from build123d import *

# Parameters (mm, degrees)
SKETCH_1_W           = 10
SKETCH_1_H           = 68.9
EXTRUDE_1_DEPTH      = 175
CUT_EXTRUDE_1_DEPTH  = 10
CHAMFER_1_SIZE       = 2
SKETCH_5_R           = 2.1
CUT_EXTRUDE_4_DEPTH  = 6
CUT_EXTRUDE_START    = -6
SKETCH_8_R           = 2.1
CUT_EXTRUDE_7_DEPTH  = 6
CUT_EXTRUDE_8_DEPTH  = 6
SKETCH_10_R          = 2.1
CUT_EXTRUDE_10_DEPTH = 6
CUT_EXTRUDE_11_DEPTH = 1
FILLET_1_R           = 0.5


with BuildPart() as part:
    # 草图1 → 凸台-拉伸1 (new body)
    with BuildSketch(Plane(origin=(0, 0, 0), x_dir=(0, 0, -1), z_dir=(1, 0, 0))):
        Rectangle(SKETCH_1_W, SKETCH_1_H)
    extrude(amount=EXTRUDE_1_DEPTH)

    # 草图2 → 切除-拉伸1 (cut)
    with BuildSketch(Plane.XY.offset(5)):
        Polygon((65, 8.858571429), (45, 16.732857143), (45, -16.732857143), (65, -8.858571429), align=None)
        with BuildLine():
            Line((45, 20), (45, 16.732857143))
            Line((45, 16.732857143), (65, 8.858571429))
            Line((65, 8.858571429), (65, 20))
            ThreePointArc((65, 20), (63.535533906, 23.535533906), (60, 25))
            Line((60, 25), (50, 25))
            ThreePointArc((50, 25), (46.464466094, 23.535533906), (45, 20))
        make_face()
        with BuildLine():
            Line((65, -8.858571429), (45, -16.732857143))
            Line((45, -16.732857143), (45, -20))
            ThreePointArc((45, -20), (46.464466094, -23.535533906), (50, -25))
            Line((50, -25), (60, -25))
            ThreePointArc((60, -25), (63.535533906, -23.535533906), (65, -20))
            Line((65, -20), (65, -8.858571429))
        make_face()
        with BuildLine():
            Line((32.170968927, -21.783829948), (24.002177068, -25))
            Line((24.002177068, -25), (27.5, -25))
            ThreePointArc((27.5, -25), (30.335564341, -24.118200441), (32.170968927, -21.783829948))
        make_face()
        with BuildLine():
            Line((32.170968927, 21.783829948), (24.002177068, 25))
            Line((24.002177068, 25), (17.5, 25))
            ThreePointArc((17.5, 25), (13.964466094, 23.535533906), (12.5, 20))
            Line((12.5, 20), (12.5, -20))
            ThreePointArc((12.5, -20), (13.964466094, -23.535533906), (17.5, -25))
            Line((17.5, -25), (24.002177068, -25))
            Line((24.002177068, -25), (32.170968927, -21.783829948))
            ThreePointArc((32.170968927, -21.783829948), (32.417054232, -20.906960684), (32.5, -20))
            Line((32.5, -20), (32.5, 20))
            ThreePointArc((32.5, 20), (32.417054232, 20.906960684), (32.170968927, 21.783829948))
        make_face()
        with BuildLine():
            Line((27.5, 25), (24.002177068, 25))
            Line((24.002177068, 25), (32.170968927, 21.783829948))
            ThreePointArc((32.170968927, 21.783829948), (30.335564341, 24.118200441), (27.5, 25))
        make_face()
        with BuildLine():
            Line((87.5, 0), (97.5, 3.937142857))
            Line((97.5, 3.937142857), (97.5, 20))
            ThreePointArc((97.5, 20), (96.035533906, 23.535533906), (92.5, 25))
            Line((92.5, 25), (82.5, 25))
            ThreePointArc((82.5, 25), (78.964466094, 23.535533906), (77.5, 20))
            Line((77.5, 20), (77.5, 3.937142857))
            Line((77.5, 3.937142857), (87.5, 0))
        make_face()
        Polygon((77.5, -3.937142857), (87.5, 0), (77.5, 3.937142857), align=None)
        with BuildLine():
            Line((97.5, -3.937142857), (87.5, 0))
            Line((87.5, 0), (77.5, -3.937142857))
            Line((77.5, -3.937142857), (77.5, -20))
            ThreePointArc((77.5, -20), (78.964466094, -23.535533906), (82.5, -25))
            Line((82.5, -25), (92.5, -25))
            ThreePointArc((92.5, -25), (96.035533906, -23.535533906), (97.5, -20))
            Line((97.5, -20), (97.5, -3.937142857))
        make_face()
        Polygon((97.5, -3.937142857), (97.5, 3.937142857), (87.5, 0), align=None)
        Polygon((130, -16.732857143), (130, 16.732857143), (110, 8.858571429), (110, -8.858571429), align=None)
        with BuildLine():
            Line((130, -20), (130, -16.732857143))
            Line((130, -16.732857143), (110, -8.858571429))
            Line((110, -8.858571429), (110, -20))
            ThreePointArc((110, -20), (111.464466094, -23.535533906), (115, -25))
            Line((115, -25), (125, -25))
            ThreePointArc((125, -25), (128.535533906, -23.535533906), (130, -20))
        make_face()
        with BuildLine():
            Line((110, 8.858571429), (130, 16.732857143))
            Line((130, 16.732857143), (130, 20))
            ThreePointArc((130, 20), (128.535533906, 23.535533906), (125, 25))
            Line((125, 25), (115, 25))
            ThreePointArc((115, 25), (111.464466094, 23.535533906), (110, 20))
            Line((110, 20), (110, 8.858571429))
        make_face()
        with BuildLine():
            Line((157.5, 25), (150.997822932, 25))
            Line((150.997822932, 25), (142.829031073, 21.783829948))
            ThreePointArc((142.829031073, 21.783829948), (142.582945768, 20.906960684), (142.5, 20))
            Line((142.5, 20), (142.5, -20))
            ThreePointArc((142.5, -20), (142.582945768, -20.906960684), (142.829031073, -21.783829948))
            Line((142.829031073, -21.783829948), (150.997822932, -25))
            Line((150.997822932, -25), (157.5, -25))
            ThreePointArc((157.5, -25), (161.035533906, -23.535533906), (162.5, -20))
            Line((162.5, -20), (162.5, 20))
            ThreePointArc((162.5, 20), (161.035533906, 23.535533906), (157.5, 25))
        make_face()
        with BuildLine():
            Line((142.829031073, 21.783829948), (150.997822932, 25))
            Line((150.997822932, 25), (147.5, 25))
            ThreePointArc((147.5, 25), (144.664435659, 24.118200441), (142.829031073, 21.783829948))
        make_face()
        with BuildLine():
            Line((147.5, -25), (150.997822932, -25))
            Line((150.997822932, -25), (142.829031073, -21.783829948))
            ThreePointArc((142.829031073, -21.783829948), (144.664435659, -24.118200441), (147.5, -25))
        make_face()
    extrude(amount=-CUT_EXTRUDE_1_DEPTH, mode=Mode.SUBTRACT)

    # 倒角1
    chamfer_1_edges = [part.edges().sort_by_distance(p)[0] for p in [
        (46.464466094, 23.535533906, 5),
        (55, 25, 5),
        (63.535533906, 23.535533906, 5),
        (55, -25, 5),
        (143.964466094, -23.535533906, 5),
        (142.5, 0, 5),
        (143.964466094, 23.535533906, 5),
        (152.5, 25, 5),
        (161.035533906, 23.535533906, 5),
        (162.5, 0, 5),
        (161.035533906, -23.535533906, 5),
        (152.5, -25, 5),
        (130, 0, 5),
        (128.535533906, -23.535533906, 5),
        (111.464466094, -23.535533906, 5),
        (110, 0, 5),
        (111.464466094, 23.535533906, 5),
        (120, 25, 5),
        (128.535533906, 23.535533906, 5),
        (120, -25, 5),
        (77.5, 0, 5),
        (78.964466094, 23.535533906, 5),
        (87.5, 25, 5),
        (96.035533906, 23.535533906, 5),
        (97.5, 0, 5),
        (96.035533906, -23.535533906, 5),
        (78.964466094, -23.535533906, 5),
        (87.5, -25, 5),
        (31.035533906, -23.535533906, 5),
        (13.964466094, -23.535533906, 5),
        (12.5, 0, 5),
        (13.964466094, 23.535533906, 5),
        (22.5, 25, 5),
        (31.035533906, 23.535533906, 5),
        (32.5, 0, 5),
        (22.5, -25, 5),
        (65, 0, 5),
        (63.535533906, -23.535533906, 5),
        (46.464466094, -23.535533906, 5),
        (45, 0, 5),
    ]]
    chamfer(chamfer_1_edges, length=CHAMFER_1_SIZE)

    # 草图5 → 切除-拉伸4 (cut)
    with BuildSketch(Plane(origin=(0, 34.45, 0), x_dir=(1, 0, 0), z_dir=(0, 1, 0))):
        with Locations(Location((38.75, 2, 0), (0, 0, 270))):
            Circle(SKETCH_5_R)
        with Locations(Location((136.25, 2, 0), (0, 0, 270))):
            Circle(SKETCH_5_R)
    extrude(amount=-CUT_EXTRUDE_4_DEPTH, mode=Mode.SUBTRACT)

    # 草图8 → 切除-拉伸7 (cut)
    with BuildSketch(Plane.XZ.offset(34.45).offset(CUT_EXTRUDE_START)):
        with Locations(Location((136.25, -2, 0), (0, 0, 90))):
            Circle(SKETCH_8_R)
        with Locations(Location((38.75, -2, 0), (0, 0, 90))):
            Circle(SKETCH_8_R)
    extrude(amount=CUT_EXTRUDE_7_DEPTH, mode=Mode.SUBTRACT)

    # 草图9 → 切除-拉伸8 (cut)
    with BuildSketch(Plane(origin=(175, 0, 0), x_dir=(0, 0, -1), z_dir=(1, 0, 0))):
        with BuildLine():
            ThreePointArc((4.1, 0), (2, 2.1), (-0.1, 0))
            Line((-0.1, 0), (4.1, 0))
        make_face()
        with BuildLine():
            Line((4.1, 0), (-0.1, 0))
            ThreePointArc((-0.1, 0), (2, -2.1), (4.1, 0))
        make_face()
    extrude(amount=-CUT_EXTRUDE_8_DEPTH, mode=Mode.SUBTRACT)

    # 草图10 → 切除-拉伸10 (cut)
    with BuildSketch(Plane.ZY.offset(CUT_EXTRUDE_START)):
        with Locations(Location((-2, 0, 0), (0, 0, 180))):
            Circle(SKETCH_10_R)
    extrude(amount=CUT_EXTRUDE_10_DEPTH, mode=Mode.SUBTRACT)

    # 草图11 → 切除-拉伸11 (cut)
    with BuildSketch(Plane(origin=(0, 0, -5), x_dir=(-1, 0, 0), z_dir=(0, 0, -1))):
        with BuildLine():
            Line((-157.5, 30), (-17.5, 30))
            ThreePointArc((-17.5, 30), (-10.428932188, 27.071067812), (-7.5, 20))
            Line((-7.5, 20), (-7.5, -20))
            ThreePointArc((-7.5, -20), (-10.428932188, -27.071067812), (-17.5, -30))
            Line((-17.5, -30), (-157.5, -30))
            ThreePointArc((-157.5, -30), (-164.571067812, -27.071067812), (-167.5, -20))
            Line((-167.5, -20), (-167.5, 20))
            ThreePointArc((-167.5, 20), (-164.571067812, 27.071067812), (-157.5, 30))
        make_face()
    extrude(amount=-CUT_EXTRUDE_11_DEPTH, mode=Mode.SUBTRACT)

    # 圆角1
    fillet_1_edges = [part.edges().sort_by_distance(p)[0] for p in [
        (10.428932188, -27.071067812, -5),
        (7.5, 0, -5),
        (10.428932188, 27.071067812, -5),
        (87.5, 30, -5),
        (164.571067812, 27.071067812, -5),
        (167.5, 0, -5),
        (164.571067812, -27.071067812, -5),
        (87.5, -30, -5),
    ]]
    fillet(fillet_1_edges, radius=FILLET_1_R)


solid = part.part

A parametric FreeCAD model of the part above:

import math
import FreeCAD as App
import Part
import Sketcher

V = App.Vector


def edges_at(feature, points):
    """Names of the edges that pass closest to the given points."""
    edges = feature.Shape.Edges
    near = lambda p: min(range(len(edges)), key=lambda i: edges[i].distToShape(Part.Vertex(*p))[0])
    return sorted({f"Edge{near(p) + 1}" for p in points})

doc = App.newDocument("Part")
body = doc.addObject("PartDesign::Body", "Body")

sketch1 = body.newObject("Sketcher::SketchObject", "Sketch")
sketch1.AttachmentSupport = (doc.getObject("YZ_Plane"), [""])
sketch1.MapMode = "FlatFace"
sketch1.addGeometry(Part.LineSegment(V(34, 5, 0), V(-34, 5, 0)), False)
sketch1.addGeometry(Part.LineSegment(V(-34, 5, 0), V(-34, -5, 0)), False)
sketch1.addGeometry(Part.LineSegment(V(-34, -5, 0), V(34, -5, 0)), False)
sketch1.addGeometry(Part.LineSegment(V(34, -5, 0), V(34, 5, 0)), False)
sketch1.addConstraint(Sketcher.Constraint("Coincident", 0, 2, 1, 1))
sketch1.addConstraint(Sketcher.Constraint("Coincident", 1, 2, 2, 1))
sketch1.addConstraint(Sketcher.Constraint("Coincident", 2, 2, 3, 1))
sketch1.addConstraint(Sketcher.Constraint("Coincident", 3, 2, 0, 1))
sketch1.addConstraint(Sketcher.Constraint("Horizontal", 0))
sketch1.addConstraint(Sketcher.Constraint("Vertical", 1))
sketch1.addConstraint(Sketcher.Constraint("Horizontal", 2))
sketch1.addConstraint(Sketcher.Constraint("Vertical", 3))
sketch1.addConstraint(Sketcher.Constraint("Symmetric", 0, 2, 2, 2, -1, 1))
sketch1.addConstraint(Sketcher.Constraint("DistanceY", 1, 2, 1, 1, 10.0))
sketch1.addConstraint(Sketcher.Constraint("DistanceX", 0, 2, 0, 1, 68.9))
pad1 = body.newObject("PartDesign::Pad", "Pad")
pad1.Profile = sketch1
pad1.Length = 175

sketch2 = body.newObject("Sketcher::SketchObject", "Sketch001")
sketch2.AttachmentSupport = (doc.getObject("XY_Plane"), [""])
sketch2.MapMode = "FlatFace"
sketch2.AttachmentOffset = App.Placement(V(0, 0, 5), App.Rotation())
sketch2.addGeometry(Part.ArcOfCircle(Part.Circle(V(60, 20, 0), V(0, 0, 1), 5), math.radians(0), math.radians(90)), False)
sketch2.addGeometry(Part.LineSegment(V(60, 25, 0), V(50, 25, 0)), False)
sketch2.addGeometry(Part.ArcOfCircle(Part.Circle(V(50, 20, 0), V(0, 0, 1), 5), math.radians(90), math.radians(180)), False)
sketch2.addGeometry(Part.LineSegment(V(45, 20, 0), V(45, -20, 0)), False)
sketch2.addGeometry(Part.ArcOfCircle(Part.Circle(V(50, -20, 0), V(0, 0, 1), 5), math.radians(180), math.radians(270)), False)
sketch2.addGeometry(Part.LineSegment(V(50, -25, 0), V(60, -25, 0)), False)
sketch2.addGeometry(Part.ArcOfCircle(Part.Circle(V(60, -20, 0), V(0, 0, 1), 5), math.radians(-90), math.radians(0)), False)
sketch2.addGeometry(Part.LineSegment(V(65, -20, 0), V(65, 20, 0)), False)
sketch2.addGeometry(Part.ArcOfCircle(Part.Circle(V(27.5, -20, 0), V(0, 0, 1), 5), math.radians(-90), math.radians(-21)), False)
sketch2.addGeometry(Part.ArcOfCircle(Part.Circle(V(27.5, -20, 0), V(0, 0, 1), 5), math.radians(-21), math.radians(0)), False)
sketch2.addGeometry(Part.LineSegment(V(32.5, -20, 0), V(32.5, 20, 0)), False)
sketch2.addGeometry(Part.ArcOfCircle(Part.Circle(V(27.5, 20, 0), V(0, 0, 1), 5), math.radians(0), math.radians(21)), False)
sketch2.addGeometry(Part.ArcOfCircle(Part.Circle(V(27.5, 20, 0), V(0, 0, 1), 5), math.radians(21), math.radians(90)), False)
sketch2.addGeometry(Part.LineSegment(V(27.5, 25, 0), V(17.5, 25, 0)), False)
sketch2.addGeometry(Part.ArcOfCircle(Part.Circle(V(17.5, 20, 0), V(0, 0, 1), 5), math.radians(90), math.radians(180)), False)
sketch2.addGeometry(Part.LineSegment(V(12.5, 20, 0), V(12.5, -20, 0)), False)
sketch2.addGeometry(Part.ArcOfCircle(Part.Circle(V(17.5, -20, 0), V(0, 0, 1), 5), math.radians(180), math.radians(270)), False)
sketch2.addGeometry(Part.LineSegment(V(17.5, -25, 0), V(27.5, -25, 0)), False)
sketch2.addGeometry(Part.ArcOfCircle(Part.Circle(V(92.5, 20, 0), V(0, 0, 1), 5), math.radians(0), math.radians(90)), False)
sketch2.addGeometry(Part.LineSegment(V(92.5, 25, 0), V(82.5, 25, 0)), False)
sketch2.addGeometry(Part.ArcOfCircle(Part.Circle(V(82.5, 20, 0), V(0, 0, 1), 5), math.radians(90), math.radians(180)), False)
sketch2.addGeometry(Part.LineSegment(V(77.5, 20, 0), V(77.5, -20, 0)), False)
sketch2.addGeometry(Part.ArcOfCircle(Part.Circle(V(82.5, -20, 0), V(0, 0, 1), 5), math.radians(180), math.radians(270)), False)
sketch2.addGeometry(Part.LineSegment(V(82.5, -25, 0), V(92.5, -25, 0)), False)
sketch2.addGeometry(Part.ArcOfCircle(Part.Circle(V(92.5, -20, 0), V(0, 0, 1), 5), math.radians(-90), math.radians(0)), False)
sketch2.addGeometry(Part.LineSegment(V(97.5, -20, 0), V(97.5, 20, 0)), False)
sketch2.addGeometry(Part.ArcOfCircle(Part.Circle(V(115, -20, 0), V(0, 0, 1), 5), math.radians(180), math.radians(270)), False)
sketch2.addGeometry(Part.LineSegment(V(115, -25, 0), V(125, -25, 0)), False)
sketch2.addGeometry(Part.ArcOfCircle(Part.Circle(V(125, -20, 0), V(0, 0, 1), 5), math.radians(-90), math.radians(0)), False)
sketch2.addGeometry(Part.LineSegment(V(130, -20, 0), V(130, 20, 0)), False)
sketch2.addGeometry(Part.ArcOfCircle(Part.Circle(V(125, 20, 0), V(0, 0, 1), 5), math.radians(0), math.radians(90)), False)
sketch2.addGeometry(Part.LineSegment(V(125, 25, 0), V(115, 25, 0)), False)
sketch2.addGeometry(Part.ArcOfCircle(Part.Circle(V(115, 20, 0), V(0, 0, 1), 5), math.radians(90), math.radians(180)), False)
sketch2.addGeometry(Part.LineSegment(V(110, 20, 0), V(110, -20, 0)), False)
sketch2.addGeometry(Part.LineSegment(V(157.5, 25, 0), V(147.5, 25, 0)), False)
sketch2.addGeometry(Part.ArcOfCircle(Part.Circle(V(147.5, 20, 0), V(0, 0, 1), 5), math.radians(90), math.radians(159)), False)
sketch2.addGeometry(Part.ArcOfCircle(Part.Circle(V(147.5, 20, 0), V(0, 0, 1), 5), math.radians(159), math.radians(180)), False)
sketch2.addGeometry(Part.LineSegment(V(142.5, 20, 0), V(142.5, -20, 0)), False)
sketch2.addGeometry(Part.ArcOfCircle(Part.Circle(V(147.5, -20, 0), V(0, 0, 1), 5), math.radians(180), math.radians(201)), False)
sketch2.addGeometry(Part.ArcOfCircle(Part.Circle(V(147.5, -20, 0), V(0, 0, 1), 5), math.radians(-159), math.radians(-90)), False)
sketch2.addGeometry(Part.LineSegment(V(147.5, -25, 0), V(157.5, -25, 0)), False)
sketch2.addGeometry(Part.ArcOfCircle(Part.Circle(V(157.5, -20, 0), V(0, 0, 1), 5), math.radians(-90), math.radians(0)), False)
sketch2.addGeometry(Part.LineSegment(V(162.5, -20, 0), V(162.5, 20, 0)), False)
sketch2.addGeometry(Part.ArcOfCircle(Part.Circle(V(157.5, 20, 0), V(0, 0, 1), 5), math.radians(0), math.radians(90)), False)
sketch2.addConstraint(Sketcher.Constraint("Tangent", 0, 2, 1, 1))
sketch2.addConstraint(Sketcher.Constraint("Tangent", 1, 2, 2, 1))
sketch2.addConstraint(Sketcher.Constraint("Tangent", 2, 2, 3, 1))
sketch2.addConstraint(Sketcher.Constraint("Tangent", 3, 2, 4, 1))
sketch2.addConstraint(Sketcher.Constraint("Tangent", 4, 2, 5, 1))
sketch2.addConstraint(Sketcher.Constraint("Tangent", 5, 2, 6, 1))
sketch2.addConstraint(Sketcher.Constraint("Tangent", 6, 2, 7, 1))
sketch2.addConstraint(Sketcher.Constraint("Tangent", 7, 2, 0, 1))
sketch2.addConstraint(Sketcher.Constraint("Tangent", 8, 2, 9, 1))
sketch2.addConstraint(Sketcher.Constraint("Tangent", 9, 2, 10, 1))
sketch2.addConstraint(Sketcher.Constraint("Tangent", 10, 2, 11, 1))
sketch2.addConstraint(Sketcher.Constraint("Tangent", 11, 2, 12, 1))
sketch2.addConstraint(Sketcher.Constraint("Tangent", 12, 2, 13, 1))
sketch2.addConstraint(Sketcher.Constraint("Tangent", 13, 2, 14, 1))
sketch2.addConstraint(Sketcher.Constraint("Tangent", 14, 2, 15, 1))
sketch2.addConstraint(Sketcher.Constraint("Tangent", 15, 2, 16, 1))
sketch2.addConstraint(Sketcher.Constraint("Tangent", 16, 2, 17, 1))
sketch2.addConstraint(Sketcher.Constraint("Tangent", 17, 2, 8, 1))
sketch2.addConstraint(Sketcher.Constraint("Tangent", 18, 2, 19, 1))
sketch2.addConstraint(Sketcher.Constraint("Tangent", 19, 2, 20, 1))
sketch2.addConstraint(Sketcher.Constraint("Tangent", 20, 2, 21, 1))
sketch2.addConstraint(Sketcher.Constraint("Tangent", 21, 2, 22, 1))
sketch2.addConstraint(Sketcher.Constraint("Tangent", 22, 2, 23, 1))
sketch2.addConstraint(Sketcher.Constraint("Tangent", 23, 2, 24, 1))
sketch2.addConstraint(Sketcher.Constraint("Tangent", 24, 2, 25, 1))
sketch2.addConstraint(Sketcher.Constraint("Tangent", 25, 2, 18, 1))
sketch2.addConstraint(Sketcher.Constraint("Tangent", 26, 2, 27, 1))
sketch2.addConstraint(Sketcher.Constraint("Tangent", 27, 2, 28, 1))
sketch2.addConstraint(Sketcher.Constraint("Tangent", 28, 2, 29, 1))
sketch2.addConstraint(Sketcher.Constraint("Tangent", 29, 2, 30, 1))
sketch2.addConstraint(Sketcher.Constraint("Tangent", 30, 2, 31, 1))
sketch2.addConstraint(Sketcher.Constraint("Tangent", 31, 2, 32, 1))
sketch2.addConstraint(Sketcher.Constraint("Tangent", 32, 2, 33, 1))
sketch2.addConstraint(Sketcher.Constraint("Tangent", 33, 2, 26, 1))
sketch2.addConstraint(Sketcher.Constraint("Tangent", 34, 2, 35, 1))
sketch2.addConstraint(Sketcher.Constraint("Tangent", 35, 2, 36, 1))
sketch2.addConstraint(Sketcher.Constraint("Tangent", 36, 2, 37, 1))
sketch2.addConstraint(Sketcher.Constraint("Tangent", 37, 2, 38, 1))
sketch2.addConstraint(Sketcher.Constraint("Tangent", 38, 2, 39, 1))
sketch2.addConstraint(Sketcher.Constraint("Tangent", 39, 2, 40, 1))
sketch2.addConstraint(Sketcher.Constraint("Tangent", 40, 2, 41, 1))
sketch2.addConstraint(Sketcher.Constraint("Tangent", 41, 2, 42, 1))
sketch2.addConstraint(Sketcher.Constraint("Tangent", 42, 2, 43, 1))
sketch2.addConstraint(Sketcher.Constraint("Tangent", 43, 2, 34, 1))
sketch2.addConstraint(Sketcher.Constraint("Horizontal", 1))
sketch2.addConstraint(Sketcher.Constraint("Vertical", 3))
sketch2.addConstraint(Sketcher.Constraint("Horizontal", 5))
sketch2.addConstraint(Sketcher.Constraint("Vertical", 7))
sketch2.addConstraint(Sketcher.Constraint("Vertical", 10))
sketch2.addConstraint(Sketcher.Constraint("Horizontal", 13))
sketch2.addConstraint(Sketcher.Constraint("Vertical", 15))
sketch2.addConstraint(Sketcher.Constraint("Horizontal", 17))
sketch2.addConstraint(Sketcher.Constraint("Horizontal", 19))
sketch2.addConstraint(Sketcher.Constraint("Vertical", 21))
sketch2.addConstraint(Sketcher.Constraint("Horizontal", 23))
sketch2.addConstraint(Sketcher.Constraint("Vertical", 25))
sketch2.addConstraint(Sketcher.Constraint("Horizontal", 27))
sketch2.addConstraint(Sketcher.Constraint("Vertical", 29))
sketch2.addConstraint(Sketcher.Constraint("Horizontal", 31))
sketch2.addConstraint(Sketcher.Constraint("Vertical", 33))
sketch2.addConstraint(Sketcher.Constraint("Horizontal", 34))
sketch2.addConstraint(Sketcher.Constraint("Vertical", 37))
sketch2.addConstraint(Sketcher.Constraint("Horizontal", 40))
sketch2.addConstraint(Sketcher.Constraint("Vertical", 42))
sketch2.addConstraint(Sketcher.Constraint("Equal", 0, 2))
sketch2.addConstraint(Sketcher.Constraint("Equal", 2, 4))
sketch2.addConstraint(Sketcher.Constraint("Equal", 4, 6))
sketch2.addConstraint(Sketcher.Constraint("Equal", 6, 8))
sketch2.addConstraint(Sketcher.Constraint("Equal", 8, 9))
sketch2.addConstraint(Sketcher.Constraint("Equal", 9, 11))
sketch2.addConstraint(Sketcher.Constraint("Equal", 11, 12))
sketch2.addConstraint(Sketcher.Constraint("Equal", 12, 14))
sketch2.addConstraint(Sketcher.Constraint("Equal", 14, 16))
sketch2.addConstraint(Sketcher.Constraint("Equal", 16, 18))
sketch2.addConstraint(Sketcher.Constraint("Equal", 18, 20))
sketch2.addConstraint(Sketcher.Constraint("Equal", 20, 22))
sketch2.addConstraint(Sketcher.Constraint("Equal", 22, 24))
sketch2.addConstraint(Sketcher.Constraint("Equal", 24, 26))
sketch2.addConstraint(Sketcher.Constraint("Equal", 26, 28))
sketch2.addConstraint(Sketcher.Constraint("Equal", 28, 30))
sketch2.addConstraint(Sketcher.Constraint("Equal", 30, 32))
sketch2.addConstraint(Sketcher.Constraint("Equal", 32, 35))
sketch2.addConstraint(Sketcher.Constraint("Equal", 35, 36))
sketch2.addConstraint(Sketcher.Constraint("Equal", 36, 38))
sketch2.addConstraint(Sketcher.Constraint("Equal", 38, 39))
sketch2.addConstraint(Sketcher.Constraint("Equal", 39, 41))
sketch2.addConstraint(Sketcher.Constraint("Equal", 41, 43))
sketch2.addConstraint(Sketcher.Constraint("Symmetric", 8, 2, 11, 2, -1))
sketch2.addConstraint(Sketcher.Constraint("Symmetric", 35, 2, 38, 2, -1))
sketch2.addConstraint(Sketcher.Constraint("Horizontal", 6, 3, 8, 3))
sketch2.addConstraint(Sketcher.Constraint("Horizontal", 2, 3, 11, 3))
sketch2.addConstraint(Sketcher.Constraint("Horizontal", 14, 3, 18, 3))
sketch2.addConstraint(Sketcher.Constraint("Horizontal", 16, 3, 22, 3))
sketch2.addConstraint(Sketcher.Constraint("Horizontal", 24, 3, 26, 3))
sketch2.addConstraint(Sketcher.Constraint("Horizontal", 20, 3, 30, 3))
sketch2.addConstraint(Sketcher.Constraint("Horizontal", 32, 3, 35, 3))
sketch2.addConstraint(Sketcher.Constraint("Horizontal", 11, 2, 35, 2))
sketch2.addConstraint(Sketcher.Constraint("Equal", 5, 13))
sketch2.addConstraint(Sketcher.Constraint("Equal", 17, 19))
sketch2.addConstraint(Sketcher.Constraint("Equal", 23, 27))
sketch2.addConstraint(Sketcher.Constraint("Equal", 31, 34))
sketch2.addConstraint(Sketcher.Constraint("Radius", 0, 5.0))
sketch2.addConstraint(Sketcher.Constraint("DistanceX", 1, 2, 1, 1, 10.0))
sketch2.addConstraint(Sketcher.Constraint("DistanceY", 3, 2, 3, 1, 40.0))
sketch2.addConstraint(Sketcher.Constraint("DistanceX", -1, 1, 0, 3, 60.0))
sketch2.addConstraint(Sketcher.Constraint("DistanceX", -1, 1, 26, 3, 115.0))
sketch2.addConstraint(Sketcher.Constraint("DistanceX", -1, 1, 8, 3, 27.5))
sketch2.addConstraint(Sketcher.Constraint("DistanceX", -1, 1, 18, 3, 92.5))
sketch2.addConstraint(Sketcher.Constraint("DistanceX", -1, 1, 35, 3, 147.5))
sketch2.addConstraint(Sketcher.Constraint("DistanceX", -1, 1, 8, 2, 32.170969))
pocket1 = body.newObject("PartDesign::Pocket", "Pocket")
pocket1.Profile = sketch2
pocket1.Length = 10
doc.recompute()

chamfer = body.newObject("PartDesign::Chamfer", "Chamfer")
chamfer.Base = (pocket1, edges_at(pocket1, [
    (46.464, 23.536, 5),
    (55, 25, 5),
    (63.536, 23.536, 5),
    (55, -25, 5),
    (144.664, -24.118, 5),
    (142.5, 0, 5),
    (144.664, 24.118, 5),
    (152.5, 25, 5),
    (161.036, 23.536, 5),
    (162.5, 0, 5),
    (161.036, -23.536, 5),
    (152.5, -25, 5),
    (130, 0, 5),
    (128.536, -23.536, 5),
    (111.464, -23.536, 5),
    (110, 0, 5),
    (111.464, 23.536, 5),
    (120, 25, 5),
    (128.536, 23.536, 5),
    (120, -25, 5),
    (77.5, 0, 5),
    (78.964, 23.536, 5),
    (87.5, 25, 5),
    (96.036, 23.536, 5),
    (97.5, 0, 5),
    (96.036, -23.536, 5),
    (78.964, -23.536, 5),
    (87.5, -25, 5),
    (30.336, -24.118, 5),
    (13.964, -23.536, 5),
    (12.5, 0, 5),
    (13.964, 23.536, 5),
    (22.5, 25, 5),
    (30.336, 24.118, 5),
    (32.5, 0, 5),
    (22.5, -25, 5),
    (65, 0, 5),
    (63.536, -23.536, 5),
    (46.464, -23.536, 5),
    (45, 0, 5),
]))
chamfer.Size = 2

sketch3 = body.newObject("Sketcher::SketchObject", "Sketch002")
sketch3.AttachmentSupport = (doc.getObject("XZ_Plane"), [""])
sketch3.MapMode = "FlatFace"
sketch3.AttachmentOffset = App.Placement(V(0, 0, -34.45), App.Rotation())
sketch3.addGeometry(Part.Circle(V(38.8, -2, 0), V(0, 0, 1), 2.1), False)
sketch3.addGeometry(Part.Circle(V(136.2, -2, 0), V(0, 0, 1), 2.1), False)
sketch3.addConstraint(Sketcher.Constraint("Equal", 0, 1))
sketch3.addConstraint(Sketcher.Constraint("Horizontal", 0, 3, 1, 3))
sketch3.addConstraint(Sketcher.Constraint("Diameter", 0, 4.2))
sketch3.addConstraint(Sketcher.Constraint("DistanceY", 0, 3, -1, 1, 2.0))
sketch3.addConstraint(Sketcher.Constraint("DistanceX", 0, 3, 1, 3, 97.5))
sketch3.addConstraint(Sketcher.Constraint("DistanceX", -1, 1, 0, 3, 38.75))
pocket2 = body.newObject("PartDesign::Pocket", "Pocket001")
pocket2.Profile = sketch3
pocket2.Length = 6
pocket2.Reversed = True

sketch4 = body.newObject("Sketcher::SketchObject", "Sketch003")
sketch4.AttachmentSupport = (doc.getObject("XZ_Plane"), [""])
sketch4.MapMode = "FlatFace"
sketch4.AttachmentOffset = App.Placement(V(0, 0, 28.45), App.Rotation())
sketch4.addGeometry(Part.Circle(V(136.2, -2, 0), V(0, 0, 1), 2.1), False)
sketch4.addGeometry(Part.Circle(V(38.8, -2, 0), V(0, 0, 1), 2.1), False)
sketch4.addConstraint(Sketcher.Constraint("Equal", 0, 1))
sketch4.addConstraint(Sketcher.Constraint("Horizontal", 0, 3, 1, 3))
sketch4.addConstraint(Sketcher.Constraint("Diameter", 0, 4.2))
sketch4.addConstraint(Sketcher.Constraint("DistanceY", 0, 3, -1, 1, 2.0))
sketch4.addConstraint(Sketcher.Constraint("DistanceX", 1, 3, 0, 3, 97.5))
sketch4.addConstraint(Sketcher.Constraint("DistanceX", -1, 1, 0, 3, 136.25))
pocket3 = body.newObject("PartDesign::Pocket", "Pocket002")
pocket3.Profile = sketch4
pocket3.Length = 6
pocket3.Reversed = True

sketch5 = body.newObject("Sketcher::SketchObject", "Sketch004")
sketch5.AttachmentSupport = (doc.getObject("YZ_Plane"), [""])
sketch5.MapMode = "FlatFace"
sketch5.AttachmentOffset = App.Placement(V(0, 0, 175), App.Rotation())
sketch5.addGeometry(Part.Circle(V(0, -2, 0), V(0, 0, 1), 2.1), False)
sketch5.addConstraint(Sketcher.Constraint("PointOnObject", 0, 3, -2))
sketch5.addConstraint(Sketcher.Constraint("Diameter", 0, 4.2))
sketch5.addConstraint(Sketcher.Constraint("DistanceY", 0, 3, -1, 1, 2.0))
pocket4 = body.newObject("PartDesign::Pocket", "Pocket003")
pocket4.Profile = sketch5
pocket4.Length = 6

sketch6 = body.newObject("Sketcher::SketchObject", "Sketch005")
sketch6.AttachmentSupport = (doc.getObject("YZ_Plane"), [""])
sketch6.MapMode = "FlatFace"
sketch6.AttachmentOffset = App.Placement(V(0, 0, 6), App.Rotation())
sketch6.addGeometry(Part.Circle(V(0, -2, 0), V(0, 0, 1), 2.1), False)
sketch6.addConstraint(Sketcher.Constraint("PointOnObject", 0, 3, -2))
sketch6.addConstraint(Sketcher.Constraint("Diameter", 0, 4.2))
sketch6.addConstraint(Sketcher.Constraint("DistanceY", 0, 3, -1, 1, 2.0))
pocket5 = body.newObject("PartDesign::Pocket", "Pocket004")
pocket5.Profile = sketch6
pocket5.Length = 6

sketch7 = body.newObject("Sketcher::SketchObject", "Sketch006")
sketch7.AttachmentSupport = (doc.getObject("XY_Plane"), [""])
sketch7.MapMode = "FlatFace"
sketch7.AttachmentOffset = App.Placement(V(0, 0, -5), App.Rotation())
sketch7.addGeometry(Part.LineSegment(V(18, 30, 0), V(158, 30, 0)), False)
sketch7.addGeometry(Part.ArcOfCircle(Part.Circle(V(158, 20, 0), V(0, 0, 1), 10), math.radians(0), math.radians(90)), False)
sketch7.addGeometry(Part.LineSegment(V(168, 20, 0), V(168, -20, 0)), False)
sketch7.addGeometry(Part.ArcOfCircle(Part.Circle(V(158, -20, 0), V(0, 0, 1), 10), math.radians(-90), math.radians(0)), False)
sketch7.addGeometry(Part.LineSegment(V(158, -30, 0), V(18, -30, 0)), False)
sketch7.addGeometry(Part.ArcOfCircle(Part.Circle(V(18, -20, 0), V(0, 0, 1), 10), math.radians(180), math.radians(270)), False)
sketch7.addGeometry(Part.LineSegment(V(8, -20, 0), V(8, 20, 0)), False)
sketch7.addGeometry(Part.ArcOfCircle(Part.Circle(V(18, 20, 0), V(0, 0, 1), 10), math.radians(90), math.radians(180)), False)
sketch7.addConstraint(Sketcher.Constraint("Tangent", 0, 2, 1, 2))
sketch7.addConstraint(Sketcher.Constraint("Tangent", 1, 1, 2, 1))
sketch7.addConstraint(Sketcher.Constraint("Tangent", 2, 2, 3, 2))
sketch7.addConstraint(Sketcher.Constraint("Tangent", 3, 1, 4, 1))
sketch7.addConstraint(Sketcher.Constraint("Tangent", 4, 2, 5, 2))
sketch7.addConstraint(Sketcher.Constraint("Tangent", 5, 1, 6, 1))
sketch7.addConstraint(Sketcher.Constraint("Tangent", 6, 2, 7, 2))
sketch7.addConstraint(Sketcher.Constraint("Tangent", 7, 1, 0, 1))
sketch7.addConstraint(Sketcher.Constraint("Horizontal", 0))
sketch7.addConstraint(Sketcher.Constraint("Vertical", 2))
sketch7.addConstraint(Sketcher.Constraint("Horizontal", 4))
sketch7.addConstraint(Sketcher.Constraint("Vertical", 6))
sketch7.addConstraint(Sketcher.Constraint("Equal", 1, 3))
sketch7.addConstraint(Sketcher.Constraint("Equal", 3, 5))
sketch7.addConstraint(Sketcher.Constraint("Equal", 5, 7))
sketch7.addConstraint(Sketcher.Constraint("Radius", 1, 10.0))
sketch7.addConstraint(Sketcher.Constraint("DistanceX", 0, 1, 0, 2, 140.0))
sketch7.addConstraint(Sketcher.Constraint("DistanceY", 2, 2, 2, 1, 40.0))
sketch7.addConstraint(Sketcher.Constraint("DistanceY", -1, 1, 1, 3, 20.0))
sketch7.addConstraint(Sketcher.Constraint("DistanceX", -1, 1, 1, 3, 157.5))
pocket6 = body.newObject("PartDesign::Pocket", "Pocket005")
pocket6.Profile = sketch7
pocket6.Length = 1
pocket6.Reversed = True
doc.recompute()

fillet = body.newObject("PartDesign::Fillet", "Fillet")
fillet.Base = (pocket6, edges_at(pocket6, [
    (10.429, -27.071, -5),
    (7.5, 0, -5),
    (10.429, 27.071, -5),
    (87.5, 30, -5),
    (164.571, 27.071, -5),
    (167.5, 0, -5),
    (164.571, -27.071, -5),
    (87.5, -30, -5),
]))
fillet.Radius = 0.5

doc.recompute()
